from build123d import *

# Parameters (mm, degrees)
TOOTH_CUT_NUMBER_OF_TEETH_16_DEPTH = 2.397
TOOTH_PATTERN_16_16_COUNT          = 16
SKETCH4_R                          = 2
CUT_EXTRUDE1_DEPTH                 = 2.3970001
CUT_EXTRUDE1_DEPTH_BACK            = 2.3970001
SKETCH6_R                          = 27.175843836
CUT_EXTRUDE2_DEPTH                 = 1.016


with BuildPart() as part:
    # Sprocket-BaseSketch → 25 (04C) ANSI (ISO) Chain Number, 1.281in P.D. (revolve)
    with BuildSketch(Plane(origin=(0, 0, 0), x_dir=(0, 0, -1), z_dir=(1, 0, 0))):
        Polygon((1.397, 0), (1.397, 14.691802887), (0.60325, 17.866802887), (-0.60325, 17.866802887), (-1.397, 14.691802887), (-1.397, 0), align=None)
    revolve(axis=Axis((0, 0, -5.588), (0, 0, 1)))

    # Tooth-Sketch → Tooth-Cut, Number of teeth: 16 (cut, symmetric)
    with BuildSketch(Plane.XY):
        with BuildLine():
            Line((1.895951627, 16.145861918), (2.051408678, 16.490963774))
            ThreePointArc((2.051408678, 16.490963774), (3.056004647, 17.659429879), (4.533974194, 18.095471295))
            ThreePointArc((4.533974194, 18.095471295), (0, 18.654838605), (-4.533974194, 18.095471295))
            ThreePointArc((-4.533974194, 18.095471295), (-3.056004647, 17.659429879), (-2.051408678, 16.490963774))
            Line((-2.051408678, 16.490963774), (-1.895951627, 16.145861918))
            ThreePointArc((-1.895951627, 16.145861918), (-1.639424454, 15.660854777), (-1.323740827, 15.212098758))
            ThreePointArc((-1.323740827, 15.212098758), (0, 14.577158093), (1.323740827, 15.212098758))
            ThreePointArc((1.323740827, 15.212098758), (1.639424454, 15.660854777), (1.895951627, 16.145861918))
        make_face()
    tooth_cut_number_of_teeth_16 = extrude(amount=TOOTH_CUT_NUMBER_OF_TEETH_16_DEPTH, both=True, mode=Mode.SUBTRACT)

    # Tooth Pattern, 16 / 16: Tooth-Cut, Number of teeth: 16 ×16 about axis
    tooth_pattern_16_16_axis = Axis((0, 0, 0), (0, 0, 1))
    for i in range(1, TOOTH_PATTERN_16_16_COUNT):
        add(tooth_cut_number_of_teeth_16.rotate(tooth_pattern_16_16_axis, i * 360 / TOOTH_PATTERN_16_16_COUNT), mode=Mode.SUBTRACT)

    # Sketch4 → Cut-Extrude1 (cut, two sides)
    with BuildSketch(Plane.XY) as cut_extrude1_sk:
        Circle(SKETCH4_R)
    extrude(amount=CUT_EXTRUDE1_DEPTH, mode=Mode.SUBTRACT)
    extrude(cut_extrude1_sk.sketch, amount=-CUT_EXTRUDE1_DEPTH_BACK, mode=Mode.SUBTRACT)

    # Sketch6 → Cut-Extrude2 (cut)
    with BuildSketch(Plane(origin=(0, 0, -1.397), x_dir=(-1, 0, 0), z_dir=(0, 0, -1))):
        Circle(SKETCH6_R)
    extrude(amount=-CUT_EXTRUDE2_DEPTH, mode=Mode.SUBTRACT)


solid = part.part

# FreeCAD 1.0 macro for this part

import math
import FreeCAD as App
import Part
import Sketcher
from FreeCAD import Vector
Q = App.Units.Quantity


def add_polygon(sketch, points):
    """Adds a closed chain of lines whose ends are joined by coincident constraints."""
    first, n = sketch.GeometryCount, len(points)
    for a, b in zip(points, points[1:] + points[:1]):
        sketch.addGeometry(Part.LineSegment(App.Vector(*a, 0), App.Vector(*b, 0)), False)
    for i in range(n):
        sketch.addConstraint(Sketcher.Constraint("Coincident", first + i, 2, first + (i + 1) % n, 1))

doc = App.newDocument("Part")
params = doc.addObject("Spreadsheet::Sheet", "Params")
for row, (alias, value) in enumerate([
    ("sketch1_height", "0.11 in"),
    ("revolution_angle", "360 deg"),
    ("pocket1_length", "4.794 mm"),
    ("pocket3_length", "0.04 in"),
], start=1):
    params.set(f"A{row}", alias)
    params.set(f"B{row}", "=" + value)
    params.setAlias(f"B{row}", alias)

body = doc.addObject("PartDesign::Body", "Body")

sketch1 = body.newObject("Sketcher::SketchObject", "Sketch")
sketch1.AttachmentSupport = (doc.getObject("YZ_Plane"), [""])
sketch1.MapMode = "FlatFace"
add_polygon(sketch1, [(0, -1.397), (14.691803, -1.397), (17.866803, -0.60325), (17.866803, 0.60325), (14.691803, 1.397), (0, 1.397)])
sketch1.addConstraint(Sketcher.Constraint("Horizontal", 0))
sketch1.addConstraint(Sketcher.Constraint("Vertical", 2))
sketch1.addConstraint(Sketcher.Constraint("Horizontal", 4))
sketch1.addConstraint(Sketcher.Constraint("Vertical", 5))
sketch1.addConstraint(Sketcher.Constraint("Symmetric", 4, 2, 5, 2, -1, 1))
sketch1.addConstraint(Sketcher.Constraint("Vertical", 0, 2, 3, 2))
sketch1.addConstraint(Sketcher.Constraint("Equal", 1, 3))
sketch1.addConstraint(Sketcher.Constraint("DistanceY", 5, 2, 5, 1, Q("0.11 in")))
sketch1.addConstraint(Sketcher.Constraint("DistanceY", 2, 1, 2, 2, Q("0.0475 in")))
sketch1.addConstraint(Sketcher.Constraint("DistanceX", 0, 2, 1, 2, Q("0.125 in")))
sketch1.addConstraint(Sketcher.Constraint("DistanceX", 0, 1, 0, 2, 14.691803))
sketch1.setExpression("Constraints[13]", "Params.sketch1_height")
revolution = body.newObject("PartDesign::Revolution", "Revolution")
revolution.Profile = sketch1
revolution.ReferenceAxis = (sketch1, ["V_Axis"])
revolution.setExpression("Angle", "Params.revolution_angle")

sketch2 = body.newObject("Sketcher::SketchObject", "Sketch001")
sketch2.AttachmentSupport = (doc.getObject("XY_Plane"), [""])
sketch2.MapMode = "FlatFace"
sketch2.addGeometry(Part.LineSegment(Vector(1.895952, 16.145862, 0), Vector(2.051409, 16.490964, 0)), False)
sketch2.addGeometry(Part.ArcOfCircle(Part.Circle(Vector(4.533974, 15.37265, 0), Vector(0, 0, 1), 2.722822), math.radians(90), math.radians(155.75)), False)
sketch2.addGeometry(Part.ArcOfCircle(Part.Circle(Vector(0, 0, 0), Vector(0, 0, 1), 18.654839), math.radians(75.933643), math.radians(104.066357)), False)
sketch2.addGeometry(Part.ArcOfCircle(Part.Circle(Vector(-4.533974, 15.37265, 0), Vector(0, 0, 1), 2.722822), math.radians(24.25), math.radians(90)), False)
sketch2.addGeometry(Part.LineSegment(Vector(-2.051409, 16.490964, 0), Vector(-1.895952, 16.145862, 0)), False)
sketch2.addGeometry(Part.ArcOfCircle(Part.Circle(Vector(2.060143, 17.927953, 0), Vector(0, 0, 1), 4.338955), math.radians(-155.75), math.radians(-141.25)), False)
sketch2.addGeometry(Part.ArcOfCircle(Part.Circle(Vector(0, 16.274513, 0), Vector(0, 0, 1), 1.697355), math.radians(-141.25), math.radians(-38.75)), False)
sketch2.addGeometry(Part.ArcOfCircle(Part.Circle(Vector(-2.060143, 17.927953, 0), Vector(0, 0, 1), 4.338955), math.radians(-38.75), math.radians(-24.25)), False)
sketch2.addConstraint(Sketcher.Constraint("Tangent", 0, 2, 1, 2))
sketch2.addConstraint(Sketcher.Constraint("Coincident", 1, 1, 2, 1))
sketch2.addConstraint(Sketcher.Constraint("Coincident", 2, 2, 3, 2))
sketch2.addConstraint(Sketcher.Constraint("Tangent", 3, 1, 4, 1))
sketch2.addConstraint(Sketcher.Constraint("Tangent", 4, 2, 5, 1))
sketch2.addConstraint(Sketcher.Constraint("Tangent", 5, 2, 6, 1))
sketch2.addConstraint(Sketcher.Constraint("Tangent", 6, 2, 7, 1))
sketch2.addConstraint(Sketcher.Constraint("Tangent", 7, 2, 0, 1))
sketch2.addConstraint(Sketcher.Constraint("Coincident", 2, 3, -1, 1))
sketch2.addConstraint(Sketcher.Constraint("Equal", 1, 3))
sketch2.addConstraint(Sketcher.Constraint("Equal", 5, 7))
sketch2.addConstraint(Sketcher.Constraint("Symmetric", 1, 3, 3, 3, -2))
sketch2.addConstraint(Sketcher.Constraint("Symmetric", 5, 3, 7, 3, -2))
sketch2.addConstraint(Sketcher.Constraint("Vertical", 3, 3, 2, 2))
sketch2.addConstraint(Sketcher.Constraint("Angle", 0, Q("65.75 deg")))
sketch2.addConstraint(Sketcher.Constraint("Radius", 1, 2.722822))
sketch2.addConstraint(Sketcher.Constraint("Radius", 2, 18.654839))
sketch2.addConstraint(Sketcher.Constraint("Radius", 5, 4.338955))
sketch2.addConstraint(Sketcher.Constraint("Radius", 6, 1.697355))
sketch2.addConstraint(Sketcher.Constraint("Distance", 0, 0.3785))
sketch2.addConstraint(Sketcher.Constraint("DistanceY", -1, 1, 5, 2, 15.212099))
pocket1 = body.newObject("PartDesign::Pocket", "Pocket")
pocket1.Profile = sketch2
pocket1.setExpression("Length", "Params.pocket1_length")
pocket1.Midplane = True
doc.recompute()

polarpattern = body.newObject("PartDesign::PolarPattern", "PolarPattern")
polarpattern.Originals = [pocket1]
polarpattern.Axis = (doc.getObject("Z_Axis"), [""])
polarpattern.Angle = 360
polarpattern.Occurrences = 16
body.Tip = polarpattern

sketch3 = body.newObject("Sketcher::SketchObject", "Sketch002")
sketch3.AttachmentSupport = (doc.getObject("XY_Plane"), [""])
sketch3.MapMode = "FlatFace"
sketch3.addGeometry(Part.Circle(Vector(0, 0, 0), Vector(0, 0, 1), 2), False)
sketch3.addConstraint(Sketcher.Constraint("Coincident", 0, 3, -1, 1))
sketch3.addConstraint(Sketcher.Constraint("Diameter", 0, 4.0))
pocket2 = body.newObject("PartDesign::Pocket", "Pocket001")
pocket2.Profile = sketch3
pocket2.Type = "ThroughAll"
pocket2.Midplane = True

sketch4 = body.newObject("Sketcher::SketchObject", "Sketch003")
sketch4.AttachmentSupport = (doc.getObject("XY_Plane"), [""])
sketch4.MapMode = "FlatFace"
sketch4.AttachmentOffset = App.Placement(Vector(0, 0, -0.055 * 25.4), App.Rotation())
sketch4.addGeometry(Part.Circle(Vector(0, 0, 0), Vector(0, 0, 1), 27.175844), False)
sketch4.addConstraint(Sketcher.Constraint("Coincident", 0, 3, -1, 1))
sketch4.addConstraint(Sketcher.Constraint("Diameter", 0, 54.351688))
pocket3 = body.newObject("PartDesign::Pocket", "Pocket002")
pocket3.Profile = sketch4
pocket3.setExpression("Length", "Params.pocket3_length")
pocket3.Reversed = True

doc.recompute()
